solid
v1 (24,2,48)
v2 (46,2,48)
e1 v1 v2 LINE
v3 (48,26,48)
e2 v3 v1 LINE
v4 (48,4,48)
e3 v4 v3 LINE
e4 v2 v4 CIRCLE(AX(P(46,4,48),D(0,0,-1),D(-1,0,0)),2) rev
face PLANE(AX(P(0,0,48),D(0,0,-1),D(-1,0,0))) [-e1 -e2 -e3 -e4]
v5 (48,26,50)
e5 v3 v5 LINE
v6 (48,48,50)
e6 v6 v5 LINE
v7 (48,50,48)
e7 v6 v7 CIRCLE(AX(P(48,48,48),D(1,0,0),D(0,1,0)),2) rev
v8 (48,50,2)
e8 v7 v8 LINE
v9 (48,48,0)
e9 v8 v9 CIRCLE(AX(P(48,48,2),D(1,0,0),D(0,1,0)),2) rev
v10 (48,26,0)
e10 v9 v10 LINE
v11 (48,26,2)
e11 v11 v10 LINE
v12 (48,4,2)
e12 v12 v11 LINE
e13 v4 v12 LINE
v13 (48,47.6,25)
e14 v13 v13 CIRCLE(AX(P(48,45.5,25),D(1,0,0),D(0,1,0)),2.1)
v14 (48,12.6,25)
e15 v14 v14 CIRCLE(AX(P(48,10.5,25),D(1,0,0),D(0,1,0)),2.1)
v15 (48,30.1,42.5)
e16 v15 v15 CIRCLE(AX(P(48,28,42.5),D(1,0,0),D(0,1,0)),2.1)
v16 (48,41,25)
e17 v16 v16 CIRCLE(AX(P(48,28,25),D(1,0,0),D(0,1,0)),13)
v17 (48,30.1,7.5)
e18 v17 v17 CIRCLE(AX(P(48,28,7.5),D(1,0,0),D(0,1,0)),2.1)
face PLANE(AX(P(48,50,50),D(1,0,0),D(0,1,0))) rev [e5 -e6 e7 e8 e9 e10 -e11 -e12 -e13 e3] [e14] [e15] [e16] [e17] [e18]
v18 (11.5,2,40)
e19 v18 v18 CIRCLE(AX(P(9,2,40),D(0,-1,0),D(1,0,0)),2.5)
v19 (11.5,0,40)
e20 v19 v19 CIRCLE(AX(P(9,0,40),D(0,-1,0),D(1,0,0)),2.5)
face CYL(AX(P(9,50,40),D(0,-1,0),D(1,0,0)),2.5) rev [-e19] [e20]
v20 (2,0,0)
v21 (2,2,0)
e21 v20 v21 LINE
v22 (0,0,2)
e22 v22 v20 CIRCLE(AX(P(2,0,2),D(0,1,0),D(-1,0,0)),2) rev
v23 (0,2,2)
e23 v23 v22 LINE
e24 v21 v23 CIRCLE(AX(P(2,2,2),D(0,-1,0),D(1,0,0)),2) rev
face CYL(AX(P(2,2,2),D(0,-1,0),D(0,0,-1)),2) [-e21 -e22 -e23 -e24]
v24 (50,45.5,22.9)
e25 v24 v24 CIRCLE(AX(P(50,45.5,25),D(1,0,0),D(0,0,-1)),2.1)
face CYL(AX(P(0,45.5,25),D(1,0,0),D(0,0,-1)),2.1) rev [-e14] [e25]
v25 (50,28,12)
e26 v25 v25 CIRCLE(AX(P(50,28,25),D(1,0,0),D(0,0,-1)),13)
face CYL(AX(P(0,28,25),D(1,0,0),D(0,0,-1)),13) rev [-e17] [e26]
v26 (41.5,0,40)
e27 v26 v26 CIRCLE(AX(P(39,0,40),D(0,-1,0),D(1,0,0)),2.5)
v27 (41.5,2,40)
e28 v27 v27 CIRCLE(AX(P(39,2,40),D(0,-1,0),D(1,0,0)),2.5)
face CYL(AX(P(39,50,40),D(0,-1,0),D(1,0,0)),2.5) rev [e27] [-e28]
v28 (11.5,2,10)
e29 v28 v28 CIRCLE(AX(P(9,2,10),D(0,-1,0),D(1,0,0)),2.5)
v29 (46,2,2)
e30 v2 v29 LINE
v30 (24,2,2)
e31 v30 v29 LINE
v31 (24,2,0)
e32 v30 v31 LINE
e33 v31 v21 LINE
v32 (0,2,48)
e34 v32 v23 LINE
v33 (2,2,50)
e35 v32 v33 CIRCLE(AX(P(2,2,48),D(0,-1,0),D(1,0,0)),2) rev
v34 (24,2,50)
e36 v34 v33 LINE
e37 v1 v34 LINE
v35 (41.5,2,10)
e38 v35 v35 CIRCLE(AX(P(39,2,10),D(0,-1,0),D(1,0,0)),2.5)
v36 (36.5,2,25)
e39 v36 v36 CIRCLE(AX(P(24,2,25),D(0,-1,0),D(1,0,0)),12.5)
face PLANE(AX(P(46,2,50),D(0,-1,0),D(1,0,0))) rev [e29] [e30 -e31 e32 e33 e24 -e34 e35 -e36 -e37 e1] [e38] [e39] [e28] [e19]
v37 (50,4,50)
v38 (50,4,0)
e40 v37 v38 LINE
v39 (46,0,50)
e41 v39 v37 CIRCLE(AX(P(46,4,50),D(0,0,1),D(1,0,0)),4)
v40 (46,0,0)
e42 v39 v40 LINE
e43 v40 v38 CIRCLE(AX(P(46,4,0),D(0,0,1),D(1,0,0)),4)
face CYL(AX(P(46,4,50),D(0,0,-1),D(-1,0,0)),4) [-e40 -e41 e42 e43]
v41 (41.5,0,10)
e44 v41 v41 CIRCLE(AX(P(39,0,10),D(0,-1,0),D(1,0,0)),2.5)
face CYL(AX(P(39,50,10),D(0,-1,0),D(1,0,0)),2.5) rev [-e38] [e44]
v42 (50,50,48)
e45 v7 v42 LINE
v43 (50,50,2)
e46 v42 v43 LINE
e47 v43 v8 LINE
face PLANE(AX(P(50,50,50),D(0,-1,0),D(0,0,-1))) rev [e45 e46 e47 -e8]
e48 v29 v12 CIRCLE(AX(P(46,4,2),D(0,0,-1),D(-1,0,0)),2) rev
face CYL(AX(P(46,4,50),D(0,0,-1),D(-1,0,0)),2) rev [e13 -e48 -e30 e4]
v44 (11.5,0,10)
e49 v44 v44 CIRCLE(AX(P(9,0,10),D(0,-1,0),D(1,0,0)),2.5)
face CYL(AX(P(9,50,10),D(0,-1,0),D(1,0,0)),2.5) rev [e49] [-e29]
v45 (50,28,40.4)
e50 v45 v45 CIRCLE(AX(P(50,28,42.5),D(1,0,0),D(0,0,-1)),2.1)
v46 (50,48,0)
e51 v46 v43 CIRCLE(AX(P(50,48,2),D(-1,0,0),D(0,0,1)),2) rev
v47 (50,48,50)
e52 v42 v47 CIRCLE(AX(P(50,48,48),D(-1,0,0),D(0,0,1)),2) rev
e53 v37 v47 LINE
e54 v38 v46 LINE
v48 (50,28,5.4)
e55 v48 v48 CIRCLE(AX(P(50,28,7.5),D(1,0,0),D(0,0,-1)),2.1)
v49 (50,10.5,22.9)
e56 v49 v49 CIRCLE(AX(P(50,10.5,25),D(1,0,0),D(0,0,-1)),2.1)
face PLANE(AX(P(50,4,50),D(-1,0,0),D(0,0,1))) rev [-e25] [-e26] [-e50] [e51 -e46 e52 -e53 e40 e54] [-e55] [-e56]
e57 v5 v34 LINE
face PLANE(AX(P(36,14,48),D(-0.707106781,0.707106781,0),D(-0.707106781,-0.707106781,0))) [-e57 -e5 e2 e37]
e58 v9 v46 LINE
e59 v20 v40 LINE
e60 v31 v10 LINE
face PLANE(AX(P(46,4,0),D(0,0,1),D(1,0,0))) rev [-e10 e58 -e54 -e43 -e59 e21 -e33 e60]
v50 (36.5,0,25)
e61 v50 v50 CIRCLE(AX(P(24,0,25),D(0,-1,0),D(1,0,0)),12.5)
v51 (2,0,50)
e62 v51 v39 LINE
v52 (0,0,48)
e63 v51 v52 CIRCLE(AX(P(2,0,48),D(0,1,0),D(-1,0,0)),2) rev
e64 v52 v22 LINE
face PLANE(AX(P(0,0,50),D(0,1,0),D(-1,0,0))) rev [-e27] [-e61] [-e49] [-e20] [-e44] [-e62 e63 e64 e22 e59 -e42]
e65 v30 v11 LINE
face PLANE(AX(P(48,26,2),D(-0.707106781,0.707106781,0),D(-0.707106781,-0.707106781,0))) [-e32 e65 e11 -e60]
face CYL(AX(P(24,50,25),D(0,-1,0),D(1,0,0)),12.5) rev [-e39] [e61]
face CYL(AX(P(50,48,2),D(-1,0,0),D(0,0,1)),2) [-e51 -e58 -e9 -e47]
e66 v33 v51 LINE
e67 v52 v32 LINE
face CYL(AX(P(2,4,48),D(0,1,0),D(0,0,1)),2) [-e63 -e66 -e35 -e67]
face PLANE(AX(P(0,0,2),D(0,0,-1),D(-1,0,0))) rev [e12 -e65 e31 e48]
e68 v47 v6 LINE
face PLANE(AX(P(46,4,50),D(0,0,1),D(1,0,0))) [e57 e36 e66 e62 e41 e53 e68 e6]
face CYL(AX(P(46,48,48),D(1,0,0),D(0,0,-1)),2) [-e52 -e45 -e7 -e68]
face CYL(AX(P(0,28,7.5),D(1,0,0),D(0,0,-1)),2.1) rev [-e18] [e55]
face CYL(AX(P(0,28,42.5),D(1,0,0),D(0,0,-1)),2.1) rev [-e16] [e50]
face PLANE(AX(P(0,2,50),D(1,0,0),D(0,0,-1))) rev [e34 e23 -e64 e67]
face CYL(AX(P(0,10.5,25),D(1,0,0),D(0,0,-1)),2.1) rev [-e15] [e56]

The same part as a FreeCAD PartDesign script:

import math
import FreeCAD as App
import Part
import Sketcher

V = App.Vector
Q = App.Units.Quantity


def edges_at(feature, points):
    """Names of the edges that pass closest to the given points."""
    edges = feature.Shape.Edges
    near = lambda p: min(range(len(edges)), key=lambda i: edges[i].distToShape(Part.Vertex(*p))[0])
    return sorted({f"Edge{near(p) + 1}" for p in points})


def add_polygon(sketch, points):
    """Adds a closed chain of lines whose ends are joined by coincident constraints."""
    first, n = sketch.GeometryCount, len(points)
    for a, b in zip(points, points[1:] + points[:1]):
        sketch.addGeometry(Part.LineSegment(App.Vector(*a, 0), App.Vector(*b, 0)), False)
    for i in range(n):
        sketch.addConstraint(Sketcher.Constraint("Coincident", first + i, 2, first + (i + 1) % n, 1))

doc = App.newDocument("Part")
params = doc.addObject("Spreadsheet::Sheet", "Params")
for row, (alias, value) in enumerate([
    ("sketch1_radius", "4 mm"),
    ("sketch1_radius2", "2 mm"),
    ("sketch1_width", "46 mm"),
    ("pad1_length", "50 mm"),
    ("sketch2_diameter", "26 mm"),
    ("sketch2_diameter2", "4.2 mm"),
    ("pocket1_length", "50 mm"),
    ("fillet_radius", "2 mm"),
    ("sketch3_diameter", "25 mm"),
    ("sketch3_diameter2", "5 mm"),
    ("pocket2_length", "50 mm"),
    ("pad2_length", "2 mm"),
    ("pad3_length", "2 mm"),
], start=1):
    params.set(f"A{row}", alias)
    params.set(f"B{row}", "=" + value)
    params.setAlias(f"B{row}", alias)

body = doc.addObject("PartDesign::Body", "Body")

# Sketch on XY plane
sketch1 = doc.addObject("Sketcher::SketchObject", "Sketch")
body.addObject(sketch1)
sketch1.AttachmentSupport = (doc.XY_Plane, [""])
sketch1.MapMode = "FlatFace"
sketch1.addGeometry(Part.LineSegment(V(0, 0, 0), V(46, 0, 0)), False)
sketch1.addGeometry(Part.ArcOfCircle(Part.Circle(V(46, 4, 0), V(0, 0, 1), 4), math.radians(-90), math.radians(0)), False)
sketch1.addGeometry(Part.LineSegment(V(50, 4, 0), V(50, 50, 0)), False)
sketch1.addGeometry(Part.LineSegment(V(50, 50, 0), V(48, 50, 0)), False)
sketch1.addGeometry(Part.LineSegment(V(48, 50, 0), V(48, 4, 0)), False)
sketch1.addGeometry(Part.ArcOfCircle(Part.Circle(V(46, 4, 0), V(0, 0, 1), 2), math.radians(-90), math.radians(0)), False)
sketch1.addGeometry(Part.LineSegment(V(46, 2, 0), V(0, 2, 0)), False)
sketch1.addGeometry(Part.LineSegment(V(0, 2, 0), V(0, 0, 0)), False)
sketch1.addConstraint(Sketcher.Constraint("Tangent", 0, 2, 1, 1))
sketch1.addConstraint(Sketcher.Constraint("Tangent", 1, 2, 2, 1))
sketch1.addConstraint(Sketcher.Constraint("Coincident", 2, 2, 3, 1))
sketch1.addConstraint(Sketcher.Constraint("Coincident", 3, 2, 4, 1))
sketch1.addConstraint(Sketcher.Constraint("Tangent", 4, 2, 5, 2))
sketch1.addConstraint(Sketcher.Constraint("Tangent", 5, 1, 6, 1))
sketch1.addConstraint(Sketcher.Constraint("Coincident", 6, 2, 7, 1))
sketch1.addConstraint(Sketcher.Constraint("Coincident", 7, 2, 0, 1))
sketch1.addConstraint(Sketcher.Constraint("Horizontal", 0))
sketch1.addConstraint(Sketcher.Constraint("Vertical", 2))
sketch1.addConstraint(Sketcher.Constraint("Horizontal", 3))
sketch1.addConstraint(Sketcher.Constraint("Vertical", 4))
sketch1.addConstraint(Sketcher.Constraint("Horizontal", 6))
sketch1.addConstraint(Sketcher.Constraint("Vertical", 7))
sketch1.addConstraint(Sketcher.Constraint("Coincident", 7, 2, -1, 1))
sketch1.addConstraint(Sketcher.Constraint("Coincident", 5, 3, 1, 3))
sketch1.addConstraint(Sketcher.Constraint("Equal", 6, 2))
sketch1.addConstraint(Sketcher.Constraint("Radius", 1, 4.0))
sketch1.addConstraint(Sketcher.Constraint("Radius", 5, 2.0))
sketch1.addConstraint(Sketcher.Constraint("DistanceX", 0, 1, 0, 2, 46.0))
sketch1.setExpression("Constraints[17]", "Params.sketch1_radius")
sketch1.setExpression("Constraints[18]", "Params.sketch1_radius2")
sketch1.setExpression("Constraints[19]", "Params.sketch1_width")
pad1 = doc.addObject("PartDesign::Pad", "Pad")
body.addObject(pad1)
pad1.Profile = sketch1
pad1.setExpression("Length", "Params.pad1_length")

# Sketch on YZ plane
sketch2 = doc.addObject("Sketcher::SketchObject", "Sketch001")
body.addObject(sketch2)
sketch2.AttachmentSupport = (doc.YZ_Plane, [""])
sketch2.MapMode = "FlatFace"
sketch2.AttachmentOffset = App.Placement(V(0, 0, 50), App.Rotation())
sketch2.addGeometry(Part.Circle(V(28, 25, 0), V(0, 0, 1), 13), False)
sketch2.addGeometry(Part.Circle(V(45.5, 25, 0), V(0, 0, 1), 2.1), False)
sketch2.addGeometry(Part.Circle(V(28, 7.5, 0), V(0, 0, 1), 2.1), False)
sketch2.addGeometry(Part.Circle(V(10.5, 25, 0), V(0, 0, 1), 2.1), False)
sketch2.addGeometry(Part.Circle(V(28, 42.5, 0), V(0, 0, 1), 2.1), False)
sketch2.addConstraint(Sketcher.Constraint("Equal", 1, 2))
sketch2.addConstraint(Sketcher.Constraint("Equal", 2, 3))
sketch2.addConstraint(Sketcher.Constraint("Equal", 3, 4))
sketch2.addConstraint(Sketcher.Constraint("Horizontal", 0, 3, 1, 3))
sketch2.addConstraint(Sketcher.Constraint("Horizontal", 1, 3, 3, 3))
sketch2.addConstraint(Sketcher.Constraint("Vertical", 0, 3, 2, 3))
sketch2.addConstraint(Sketcher.Constraint("Vertical", 2, 3, 4, 3))
sketch2.addConstraint(Sketcher.Constraint("Diameter", 0, 26.0))
sketch2.addConstraint(Sketcher.Constraint("Diameter", 1, 4.2))
sketch2.addConstraint(Sketcher.Constraint("DistanceX", -1, 1, 0, 3, 28.0))
sketch2.addConstraint(Sketcher.Constraint("DistanceY", -1, 1, 0, 3, 25.0))
sketch2.addConstraint(Sketcher.Constraint("DistanceX", 3, 3, 1, 3, 35.0))
sketch2.addConstraint(Sketcher.Constraint("DistanceY", 2, 3, 4, 3, 35.0))
sketch2.addConstraint(Sketcher.Constraint("DistanceX", -1, 1, 1, 3, 45.5))
sketch2.addConstraint(Sketcher.Constraint("DistanceY", -1, 1, 2, 3, 7.5))
sketch2.setExpression("Constraints[7]", "Params.sketch2_diameter")
sketch2.setExpression("Constraints[8]", "Params.sketch2_diameter2")
pocket1 = doc.addObject("PartDesign::Pocket", "Pocket")
body.addObject(pocket1)
pocket1.Profile = sketch2
pocket1.setExpression("Length", "Params.pocket1_length")
doc.recompute()

fillet = doc.addObject("PartDesign::Fillet", "Fillet")
body.addObject(fillet)
fillet.Base = (pocket1, edges_at(pocket1, [
    (0, 1, 0),
    (49, 50, 50),
    (0, 1, 50),
    (49, 50, 0),
]))
fillet.setExpression("Radius", "Params.fillet_radius")

# Sketch on XZ plane
sketch3 = doc.addObject("Sketcher::SketchObject", "Sketch002")
body.addObject(sketch3)
sketch3.AttachmentSupport = (doc.XZ_Plane, [""])
sketch3.MapMode = "FlatFace"
sketch3.addGeometry(Part.Circle(V(24, 25, 0), V(0, 0, 1), 12.5), False)
sketch3.addGeometry(Part.Circle(V(39, 10, 0), V(0, 0, 1), 2.5), False)
sketch3.addGeometry(Part.Circle(V(9, 10, 0), V(0, 0, 1), 2.5), False)
sketch3.addGeometry(Part.Circle(V(9, 40, 0), V(0, 0, 1), 2.5), False)
sketch3.addGeometry(Part.Circle(V(39, 40, 0), V(0, 0, 1), 2.5), False)
sketch3.addConstraint(Sketcher.Constraint("Equal", 1, 2))
sketch3.addConstraint(Sketcher.Constraint("Equal", 2, 3))
sketch3.addConstraint(Sketcher.Constraint("Equal", 3, 4))
sketch3.addConstraint(Sketcher.Constraint("Horizontal", 1, 3, 2, 3))
sketch3.addConstraint(Sketcher.Constraint("Horizontal", 3, 3, 4, 3))
sketch3.addConstraint(Sketcher.Constraint("Vertical", 2, 3, 3, 3))
sketch3.addConstraint(Sketcher.Constraint("Vertical", 1, 3, 4, 3))
sketch3.addConstraint(Sketcher.Constraint("Diameter", 0, 25.0))
sketch3.addConstraint(Sketcher.Constraint("Diameter", 1, 5.0))
sketch3.addConstraint(Sketcher.Constraint("DistanceX", -1, 1, 0, 3, 24.0))
sketch3.addConstraint(Sketcher.Constraint("DistanceY", -1, 1, 0, 3, 25.0))
sketch3.addConstraint(Sketcher.Constraint("DistanceX", -1, 1, 1, 3, 39.0))
sketch3.addConstraint(Sketcher.Constraint("DistanceY", -1, 1, 1, 3, 10.0))
sketch3.addConstraint(Sketcher.Constraint("DistanceX", -1, 1, 2, 3, 9.0))
sketch3.addConstraint(Sketcher.Constraint("DistanceY", -1, 1, 3, 3, 40.0))
sketch3.setExpression("Constraints[7]", "Params.sketch3_diameter")
sketch3.setExpression("Constraints[8]", "Params.sketch3_diameter2")
pocket2 = doc.addObject("PartDesign::Pocket", "Pocket001")
body.addObject(pocket2)
pocket2.Profile = sketch3
pocket2.setExpression("Length", "Params.pocket2_length")

# Sketch on XY plane
sketch4 = doc.addObject("Sketcher::SketchObject", "Sketch003")
body.addObject(sketch4)
sketch4.AttachmentSupport = (doc.XY_Plane, [""])
sketch4.MapMode = "FlatFace"
add_polygon(sketch4, [(24, 2), (48, 26), (48.828427, 1.171573)])  # lines 0-2
sketch4.addConstraint(Sketcher.Constraint("Equal", 1, 2))
sketch4.addConstraint(Sketcher.Constraint("Angle", 0, Q("45 deg")))
sketch4.addConstraint(Sketcher.Constraint("DistanceX", -1, 1, 0, 2, 48.0))
sketch4.addConstraint(Sketcher.Constraint("DistanceY", -1, 1, 0, 2, 26.0))
sketch4.addConstraint(Sketcher.Constraint("DistanceX", -1, 1, 2, 2, 24.0))
sketch4.addConstraint(Sketcher.Constraint("Distance", 1, 24.842244))
pad2 = doc.addObject("PartDesign::Pad", "Pad001")
body.addObject(pad2)
pad2.Profile = sketch4
pad2.setExpression("Length", "Params.pad2_length")

# Sketch on XY plane
sketch5 = doc.addObject("Sketcher::SketchObject", "Sketch004")
body.addObject(sketch5)
sketch5.AttachmentSupport = (doc.XY_Plane, [""])
sketch5.MapMode = "FlatFace"
sketch5.AttachmentOffset = App.Placement(V(0, 0, 50), App.Rotation())
add_polygon(sketch5, [(24, 2), (48, 26), (48.828427, 1.171573)])  # lines 0-2
sketch5.addConstraint(Sketcher.Constraint("Equal", 1, 2))
sketch5.addConstraint(Sketcher.Constraint("Angle", 0, Q("45 deg")))
sketch5.addConstraint(Sketcher.Constraint("DistanceX", -1, 1, 0, 2, 48.0))
sketch5.addConstraint(Sketcher.Constraint("DistanceY", -1, 1, 0, 2, 26.0))
sketch5.addConstraint(Sketcher.Constraint("DistanceX", -1, 1, 2, 2, 24.0))
sketch5.addConstraint(Sketcher.Constraint("Distance", 1, 24.842244))
pad3 = doc.addObject("PartDesign::Pad", "Pad002")
body.addObject(pad3)
pad3.Profile = sketch5
pad3.setExpression("Length", "Params.pad3_length")
pad3.Reversed = True

doc.recompute()
